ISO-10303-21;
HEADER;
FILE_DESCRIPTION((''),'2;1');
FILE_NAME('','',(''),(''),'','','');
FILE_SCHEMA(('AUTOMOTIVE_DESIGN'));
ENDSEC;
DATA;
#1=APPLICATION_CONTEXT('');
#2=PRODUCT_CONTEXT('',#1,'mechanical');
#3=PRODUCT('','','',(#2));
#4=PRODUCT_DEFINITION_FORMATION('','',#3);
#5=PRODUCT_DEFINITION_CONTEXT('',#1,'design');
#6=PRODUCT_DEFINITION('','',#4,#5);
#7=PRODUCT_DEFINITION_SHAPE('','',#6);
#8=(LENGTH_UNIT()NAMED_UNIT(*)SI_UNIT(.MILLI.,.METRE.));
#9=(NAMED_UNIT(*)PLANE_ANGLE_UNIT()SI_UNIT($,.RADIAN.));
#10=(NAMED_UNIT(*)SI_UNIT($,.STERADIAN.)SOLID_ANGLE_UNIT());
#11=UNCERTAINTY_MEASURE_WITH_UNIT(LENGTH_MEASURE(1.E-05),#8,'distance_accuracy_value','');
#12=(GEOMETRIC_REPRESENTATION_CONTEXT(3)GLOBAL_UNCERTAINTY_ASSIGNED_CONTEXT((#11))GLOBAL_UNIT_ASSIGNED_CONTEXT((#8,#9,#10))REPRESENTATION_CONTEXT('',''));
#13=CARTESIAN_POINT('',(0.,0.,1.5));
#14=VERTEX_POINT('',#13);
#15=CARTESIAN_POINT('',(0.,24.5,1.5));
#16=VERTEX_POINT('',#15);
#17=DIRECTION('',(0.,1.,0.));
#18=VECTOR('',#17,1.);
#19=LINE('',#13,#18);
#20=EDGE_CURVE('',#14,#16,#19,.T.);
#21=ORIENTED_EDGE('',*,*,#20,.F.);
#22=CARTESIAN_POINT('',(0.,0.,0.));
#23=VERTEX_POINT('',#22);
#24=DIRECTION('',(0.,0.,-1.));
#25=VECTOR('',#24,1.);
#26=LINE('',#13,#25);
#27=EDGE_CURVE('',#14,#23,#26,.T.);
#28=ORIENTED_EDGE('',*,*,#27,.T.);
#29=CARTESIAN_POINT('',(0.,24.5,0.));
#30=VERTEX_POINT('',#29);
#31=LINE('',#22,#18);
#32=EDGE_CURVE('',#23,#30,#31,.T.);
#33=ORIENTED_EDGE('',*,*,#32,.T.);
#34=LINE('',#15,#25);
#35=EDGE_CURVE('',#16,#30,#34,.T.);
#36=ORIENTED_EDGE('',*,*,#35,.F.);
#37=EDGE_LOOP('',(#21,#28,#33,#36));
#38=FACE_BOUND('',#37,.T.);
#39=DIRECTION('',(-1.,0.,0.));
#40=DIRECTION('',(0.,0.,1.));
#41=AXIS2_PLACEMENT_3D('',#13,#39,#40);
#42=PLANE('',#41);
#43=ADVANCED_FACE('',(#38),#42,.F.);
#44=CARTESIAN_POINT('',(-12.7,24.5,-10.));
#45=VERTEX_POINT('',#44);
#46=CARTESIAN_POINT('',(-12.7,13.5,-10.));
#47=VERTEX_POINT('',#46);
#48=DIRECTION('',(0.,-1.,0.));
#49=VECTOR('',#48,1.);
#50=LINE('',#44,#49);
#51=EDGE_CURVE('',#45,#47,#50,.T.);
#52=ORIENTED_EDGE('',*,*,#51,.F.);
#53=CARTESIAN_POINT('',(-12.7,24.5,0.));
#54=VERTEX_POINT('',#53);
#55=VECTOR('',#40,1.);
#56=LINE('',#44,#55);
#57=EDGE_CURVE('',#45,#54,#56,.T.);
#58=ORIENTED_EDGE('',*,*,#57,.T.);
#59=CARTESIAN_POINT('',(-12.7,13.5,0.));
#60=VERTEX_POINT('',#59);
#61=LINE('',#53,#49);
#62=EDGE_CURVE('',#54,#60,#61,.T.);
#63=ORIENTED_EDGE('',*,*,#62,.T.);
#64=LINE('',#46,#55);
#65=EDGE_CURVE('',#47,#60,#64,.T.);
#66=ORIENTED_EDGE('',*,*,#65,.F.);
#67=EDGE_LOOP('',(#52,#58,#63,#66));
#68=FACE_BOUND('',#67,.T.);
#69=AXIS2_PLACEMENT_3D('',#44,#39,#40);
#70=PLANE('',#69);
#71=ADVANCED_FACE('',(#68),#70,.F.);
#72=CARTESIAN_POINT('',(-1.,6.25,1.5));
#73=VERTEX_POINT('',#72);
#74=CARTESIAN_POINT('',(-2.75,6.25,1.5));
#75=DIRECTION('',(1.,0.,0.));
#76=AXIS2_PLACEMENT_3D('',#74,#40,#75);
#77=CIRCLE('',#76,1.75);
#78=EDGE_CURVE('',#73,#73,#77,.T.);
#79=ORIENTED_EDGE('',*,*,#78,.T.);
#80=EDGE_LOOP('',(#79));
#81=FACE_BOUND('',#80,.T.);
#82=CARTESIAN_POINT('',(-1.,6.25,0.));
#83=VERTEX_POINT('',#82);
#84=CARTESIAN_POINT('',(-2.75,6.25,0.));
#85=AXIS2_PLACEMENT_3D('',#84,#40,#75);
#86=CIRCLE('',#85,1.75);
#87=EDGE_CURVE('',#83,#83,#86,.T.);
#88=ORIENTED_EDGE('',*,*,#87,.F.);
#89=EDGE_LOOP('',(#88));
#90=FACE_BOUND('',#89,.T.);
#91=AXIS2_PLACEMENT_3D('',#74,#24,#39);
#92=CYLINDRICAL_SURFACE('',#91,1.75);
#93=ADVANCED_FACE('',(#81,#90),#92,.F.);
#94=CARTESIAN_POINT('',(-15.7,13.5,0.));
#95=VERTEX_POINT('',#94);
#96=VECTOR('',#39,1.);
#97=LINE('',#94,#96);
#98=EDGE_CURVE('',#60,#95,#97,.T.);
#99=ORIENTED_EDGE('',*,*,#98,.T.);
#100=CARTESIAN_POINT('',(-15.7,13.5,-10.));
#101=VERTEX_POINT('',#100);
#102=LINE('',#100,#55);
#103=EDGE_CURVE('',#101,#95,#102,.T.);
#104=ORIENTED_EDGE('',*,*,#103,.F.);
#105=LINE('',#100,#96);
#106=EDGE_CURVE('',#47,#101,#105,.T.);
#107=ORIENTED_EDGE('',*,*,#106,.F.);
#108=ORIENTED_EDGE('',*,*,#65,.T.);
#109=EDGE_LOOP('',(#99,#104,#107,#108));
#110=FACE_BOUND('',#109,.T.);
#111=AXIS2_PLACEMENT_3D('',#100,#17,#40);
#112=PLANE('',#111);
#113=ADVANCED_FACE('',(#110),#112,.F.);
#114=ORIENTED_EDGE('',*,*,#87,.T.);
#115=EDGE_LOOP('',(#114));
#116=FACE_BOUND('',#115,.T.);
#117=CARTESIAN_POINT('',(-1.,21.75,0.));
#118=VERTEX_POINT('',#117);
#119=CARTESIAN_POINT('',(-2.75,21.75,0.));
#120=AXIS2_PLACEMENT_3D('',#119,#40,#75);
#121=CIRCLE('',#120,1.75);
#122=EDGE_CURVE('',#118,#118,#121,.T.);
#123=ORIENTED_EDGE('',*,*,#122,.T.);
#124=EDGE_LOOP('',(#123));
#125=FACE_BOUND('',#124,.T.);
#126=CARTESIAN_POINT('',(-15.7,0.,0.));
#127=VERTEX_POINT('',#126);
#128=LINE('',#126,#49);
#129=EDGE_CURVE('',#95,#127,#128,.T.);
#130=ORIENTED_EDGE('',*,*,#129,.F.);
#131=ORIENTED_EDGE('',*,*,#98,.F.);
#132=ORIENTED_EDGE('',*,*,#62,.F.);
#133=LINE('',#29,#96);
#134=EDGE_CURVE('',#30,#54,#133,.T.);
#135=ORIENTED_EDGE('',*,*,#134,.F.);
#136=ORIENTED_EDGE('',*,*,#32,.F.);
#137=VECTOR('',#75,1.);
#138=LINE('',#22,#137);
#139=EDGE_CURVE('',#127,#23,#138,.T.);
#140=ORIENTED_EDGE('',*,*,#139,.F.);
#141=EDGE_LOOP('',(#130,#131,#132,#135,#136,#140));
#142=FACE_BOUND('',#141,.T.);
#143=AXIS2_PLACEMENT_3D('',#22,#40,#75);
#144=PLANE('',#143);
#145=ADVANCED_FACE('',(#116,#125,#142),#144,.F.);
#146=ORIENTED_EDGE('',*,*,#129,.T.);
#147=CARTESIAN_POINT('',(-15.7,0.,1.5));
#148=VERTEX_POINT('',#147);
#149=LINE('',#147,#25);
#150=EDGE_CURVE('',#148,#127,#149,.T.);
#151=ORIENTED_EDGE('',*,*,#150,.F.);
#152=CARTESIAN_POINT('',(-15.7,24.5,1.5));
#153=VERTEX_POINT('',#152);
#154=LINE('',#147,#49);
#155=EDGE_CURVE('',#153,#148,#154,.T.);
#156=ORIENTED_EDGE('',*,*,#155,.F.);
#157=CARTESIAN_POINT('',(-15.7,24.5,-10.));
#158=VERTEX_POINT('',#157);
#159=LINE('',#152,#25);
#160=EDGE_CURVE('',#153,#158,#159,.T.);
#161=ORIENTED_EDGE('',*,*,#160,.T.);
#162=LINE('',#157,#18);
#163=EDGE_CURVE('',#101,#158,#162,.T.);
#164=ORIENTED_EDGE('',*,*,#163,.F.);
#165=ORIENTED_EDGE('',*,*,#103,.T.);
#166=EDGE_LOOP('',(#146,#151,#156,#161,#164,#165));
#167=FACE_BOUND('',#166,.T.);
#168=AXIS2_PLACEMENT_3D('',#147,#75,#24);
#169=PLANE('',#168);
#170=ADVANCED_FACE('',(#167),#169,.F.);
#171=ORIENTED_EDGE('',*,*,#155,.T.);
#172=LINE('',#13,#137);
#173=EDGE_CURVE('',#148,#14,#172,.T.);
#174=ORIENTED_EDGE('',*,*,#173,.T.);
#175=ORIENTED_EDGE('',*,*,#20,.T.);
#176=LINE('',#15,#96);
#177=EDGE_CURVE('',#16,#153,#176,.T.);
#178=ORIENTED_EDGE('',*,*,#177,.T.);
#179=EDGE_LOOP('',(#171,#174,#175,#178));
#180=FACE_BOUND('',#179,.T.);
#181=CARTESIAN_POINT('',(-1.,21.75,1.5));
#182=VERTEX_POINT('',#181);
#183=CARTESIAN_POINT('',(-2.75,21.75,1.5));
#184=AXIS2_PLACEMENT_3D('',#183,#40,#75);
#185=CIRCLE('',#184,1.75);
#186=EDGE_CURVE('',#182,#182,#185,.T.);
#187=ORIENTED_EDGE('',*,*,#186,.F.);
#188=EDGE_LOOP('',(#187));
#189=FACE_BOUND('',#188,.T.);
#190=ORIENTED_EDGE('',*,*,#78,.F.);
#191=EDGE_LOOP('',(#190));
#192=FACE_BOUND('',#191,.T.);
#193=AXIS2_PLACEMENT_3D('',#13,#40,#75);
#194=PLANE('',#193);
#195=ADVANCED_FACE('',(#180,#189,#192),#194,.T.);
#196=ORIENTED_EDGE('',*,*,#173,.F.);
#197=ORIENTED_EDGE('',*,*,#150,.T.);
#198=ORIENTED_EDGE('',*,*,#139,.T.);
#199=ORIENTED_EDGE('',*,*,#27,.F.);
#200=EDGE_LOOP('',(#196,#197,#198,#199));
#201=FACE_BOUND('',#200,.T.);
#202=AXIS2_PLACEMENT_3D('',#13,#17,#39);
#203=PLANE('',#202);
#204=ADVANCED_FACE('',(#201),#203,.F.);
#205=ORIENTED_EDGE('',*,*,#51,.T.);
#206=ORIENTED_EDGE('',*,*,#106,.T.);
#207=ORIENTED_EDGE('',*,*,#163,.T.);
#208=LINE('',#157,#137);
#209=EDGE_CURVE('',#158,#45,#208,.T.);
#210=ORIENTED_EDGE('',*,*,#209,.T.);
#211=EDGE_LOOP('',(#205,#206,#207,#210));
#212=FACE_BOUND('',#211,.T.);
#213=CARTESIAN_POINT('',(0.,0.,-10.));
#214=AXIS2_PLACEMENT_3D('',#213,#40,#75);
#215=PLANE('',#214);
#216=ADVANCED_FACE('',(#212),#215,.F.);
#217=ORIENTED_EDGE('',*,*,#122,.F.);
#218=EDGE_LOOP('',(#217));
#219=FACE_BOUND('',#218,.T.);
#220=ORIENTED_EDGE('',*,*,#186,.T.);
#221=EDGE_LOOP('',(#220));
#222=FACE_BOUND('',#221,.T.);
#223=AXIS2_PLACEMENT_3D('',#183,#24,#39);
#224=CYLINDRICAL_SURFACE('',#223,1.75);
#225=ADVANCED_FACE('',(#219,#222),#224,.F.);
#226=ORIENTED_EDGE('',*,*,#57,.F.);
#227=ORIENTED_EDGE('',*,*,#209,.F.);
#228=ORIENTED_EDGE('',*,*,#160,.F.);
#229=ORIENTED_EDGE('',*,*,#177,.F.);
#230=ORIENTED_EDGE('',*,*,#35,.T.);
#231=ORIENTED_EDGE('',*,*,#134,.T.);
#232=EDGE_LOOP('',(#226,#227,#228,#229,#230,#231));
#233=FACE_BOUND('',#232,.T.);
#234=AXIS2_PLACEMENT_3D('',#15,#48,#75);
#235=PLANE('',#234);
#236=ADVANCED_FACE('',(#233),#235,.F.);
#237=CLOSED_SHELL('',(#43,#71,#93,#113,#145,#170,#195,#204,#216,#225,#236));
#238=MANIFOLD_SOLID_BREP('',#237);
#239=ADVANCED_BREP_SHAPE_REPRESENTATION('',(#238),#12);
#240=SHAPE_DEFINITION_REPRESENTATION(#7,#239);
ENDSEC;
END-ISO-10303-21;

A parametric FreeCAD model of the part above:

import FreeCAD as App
import Part
import Sketcher
from FreeCAD import Vector

doc = App.newDocument("Part")
body = doc.addObject("PartDesign::Body", "Body")

# Sketch on XY plane
sketch1 = doc.addObject("Sketcher::SketchObject", "Sketch")
body.addObject(sketch1)
sketch1.AttachmentSupport = (doc.XY_Plane, [""])
sketch1.MapMode = "FlatFace"
sketch1.addGeometry(Part.LineSegment(Vector(-15.7, 24.5, 0), Vector(-15.7, 0, 0)), False)
sketch1.addGeometry(Part.LineSegment(Vector(-15.7, 0, 0), Vector(0, 0, 0)), False)
sketch1.addGeometry(Part.LineSegment(Vector(0, 0, 0), Vector(0, 24.5, 0)), False)
sketch1.addGeometry(Part.LineSegment(Vector(0, 24.5, 0), Vector(-15.7, 24.5, 0)), False)
sketch1.addGeometry(Part.Circle(Vector(-2.8, 6.2, 0), Vector(0, 0, 1), 1.8), False)
sketch1.addGeometry(Part.Circle(Vector(-2.8, 21.8, 0), Vector(0, 0, 1), 1.8), False)
sketch1.addConstraint(Sketcher.Constraint("Coincident", 0, 2, 1, 1))
sketch1.addConstraint(Sketcher.Constraint("Coincident", 1, 2, 2, 1))
sketch1.addConstraint(Sketcher.Constraint("Coincident", 2, 2, 3, 1))
sketch1.addConstraint(Sketcher.Constraint("Coincident", 3, 2, 0, 1))
sketch1.addConstraint(Sketcher.Constraint("Vertical", 0))
sketch1.addConstraint(Sketcher.Constraint("Horizontal", 1))
sketch1.addConstraint(Sketcher.Constraint("Vertical", 2))
sketch1.addConstraint(Sketcher.Constraint("Horizontal", 3))
sketch1.addConstraint(Sketcher.Constraint("Coincident", 1, 2, -1, 1))
sketch1.addConstraint(Sketcher.Constraint("Equal", 4, 5))
sketch1.addConstraint(Sketcher.Constraint("Vertical", 4, 3, 5, 3))
sketch1.addConstraint(Sketcher.Constraint("Diameter", 4, 3.5))
sketch1.addConstraint(Sketcher.Constraint("DistanceX", 1, 1, 1, 2, 15.7))
sketch1.addConstraint(Sketcher.Constraint("DistanceY", 0, 2, 0, 1, 24.5))
sketch1.addConstraint(Sketcher.Constraint("DistanceY", 4, 3, 5, 3, 15.5))
sketch1.addConstraint(Sketcher.Constraint("DistanceX", 4, 3, -1, 1, 2.75))
sketch1.addConstraint(Sketcher.Constraint("DistanceY", -1, 1, 4, 3, 6.25))
pad1 = doc.addObject("PartDesign::Pad", "Pad")
body.addObject(pad1)
pad1.Profile = sketch1
pad1.Length = 1.5

# Sketch on XY plane
sketch2 = doc.addObject("Sketcher::SketchObject", "Sketch001")
body.addObject(sketch2)
sketch2.AttachmentSupport = (doc.XY_Plane, [""])
sketch2.MapMode = "FlatFace"
sketch2.addGeometry(Part.LineSegment(Vector(-12.7, 24.5, 0), Vector(-12.7, 13.5, 0)), False)
sketch2.addGeometry(Part.LineSegment(Vector(-12.7, 13.5, 0), Vector(-15.7, 13.5, 0)), False)
sketch2.addGeometry(Part.LineSegment(Vector(-15.7, 13.5, 0), Vector(-15.7, 24.5, 0)), False)
sketch2.addGeometry(Part.LineSegment(Vector(-15.7, 24.5, 0), Vector(-12.7, 24.5, 0)), False)
sketch2.addConstraint(Sketcher.Constraint("Coincident", 0, 2, 1, 1))
sketch2.addConstraint(Sketcher.Constraint("Coincident", 1, 2, 2, 1))
sketch2.addConstraint(Sketcher.Constraint("Coincident", 2, 2, 3, 1))
sketch2.addConstraint(Sketcher.Constraint("Coincident", 3, 2, 0, 1))
sketch2.addConstraint(Sketcher.Constraint("Vertical", 0))
sketch2.addConstraint(Sketcher.Constraint("Horizontal", 1))
sketch2.addConstraint(Sketcher.Constraint("Vertical", 2))
sketch2.addConstraint(Sketcher.Constraint("Horizontal", 3))
sketch2.addConstraint(Sketcher.Constraint("DistanceX", 1, 2, 1, 1, 3.0))
sketch2.addConstraint(Sketcher.Constraint("DistanceY", 0, 2, 0, 1, 11.0))
sketch2.addConstraint(Sketcher.Constraint("DistanceX", 0, 2, -1, 1, 12.7))
sketch2.addConstraint(Sketcher.Constraint("DistanceY", -1, 1, 0, 2, 13.5))
pad2 = doc.addObject("PartDesign::Pad", "Pad001")
body.addObject(pad2)
pad2.Profile = sketch2
pad2.Length = 10
pad2.Reversed = True

doc.recompute()
